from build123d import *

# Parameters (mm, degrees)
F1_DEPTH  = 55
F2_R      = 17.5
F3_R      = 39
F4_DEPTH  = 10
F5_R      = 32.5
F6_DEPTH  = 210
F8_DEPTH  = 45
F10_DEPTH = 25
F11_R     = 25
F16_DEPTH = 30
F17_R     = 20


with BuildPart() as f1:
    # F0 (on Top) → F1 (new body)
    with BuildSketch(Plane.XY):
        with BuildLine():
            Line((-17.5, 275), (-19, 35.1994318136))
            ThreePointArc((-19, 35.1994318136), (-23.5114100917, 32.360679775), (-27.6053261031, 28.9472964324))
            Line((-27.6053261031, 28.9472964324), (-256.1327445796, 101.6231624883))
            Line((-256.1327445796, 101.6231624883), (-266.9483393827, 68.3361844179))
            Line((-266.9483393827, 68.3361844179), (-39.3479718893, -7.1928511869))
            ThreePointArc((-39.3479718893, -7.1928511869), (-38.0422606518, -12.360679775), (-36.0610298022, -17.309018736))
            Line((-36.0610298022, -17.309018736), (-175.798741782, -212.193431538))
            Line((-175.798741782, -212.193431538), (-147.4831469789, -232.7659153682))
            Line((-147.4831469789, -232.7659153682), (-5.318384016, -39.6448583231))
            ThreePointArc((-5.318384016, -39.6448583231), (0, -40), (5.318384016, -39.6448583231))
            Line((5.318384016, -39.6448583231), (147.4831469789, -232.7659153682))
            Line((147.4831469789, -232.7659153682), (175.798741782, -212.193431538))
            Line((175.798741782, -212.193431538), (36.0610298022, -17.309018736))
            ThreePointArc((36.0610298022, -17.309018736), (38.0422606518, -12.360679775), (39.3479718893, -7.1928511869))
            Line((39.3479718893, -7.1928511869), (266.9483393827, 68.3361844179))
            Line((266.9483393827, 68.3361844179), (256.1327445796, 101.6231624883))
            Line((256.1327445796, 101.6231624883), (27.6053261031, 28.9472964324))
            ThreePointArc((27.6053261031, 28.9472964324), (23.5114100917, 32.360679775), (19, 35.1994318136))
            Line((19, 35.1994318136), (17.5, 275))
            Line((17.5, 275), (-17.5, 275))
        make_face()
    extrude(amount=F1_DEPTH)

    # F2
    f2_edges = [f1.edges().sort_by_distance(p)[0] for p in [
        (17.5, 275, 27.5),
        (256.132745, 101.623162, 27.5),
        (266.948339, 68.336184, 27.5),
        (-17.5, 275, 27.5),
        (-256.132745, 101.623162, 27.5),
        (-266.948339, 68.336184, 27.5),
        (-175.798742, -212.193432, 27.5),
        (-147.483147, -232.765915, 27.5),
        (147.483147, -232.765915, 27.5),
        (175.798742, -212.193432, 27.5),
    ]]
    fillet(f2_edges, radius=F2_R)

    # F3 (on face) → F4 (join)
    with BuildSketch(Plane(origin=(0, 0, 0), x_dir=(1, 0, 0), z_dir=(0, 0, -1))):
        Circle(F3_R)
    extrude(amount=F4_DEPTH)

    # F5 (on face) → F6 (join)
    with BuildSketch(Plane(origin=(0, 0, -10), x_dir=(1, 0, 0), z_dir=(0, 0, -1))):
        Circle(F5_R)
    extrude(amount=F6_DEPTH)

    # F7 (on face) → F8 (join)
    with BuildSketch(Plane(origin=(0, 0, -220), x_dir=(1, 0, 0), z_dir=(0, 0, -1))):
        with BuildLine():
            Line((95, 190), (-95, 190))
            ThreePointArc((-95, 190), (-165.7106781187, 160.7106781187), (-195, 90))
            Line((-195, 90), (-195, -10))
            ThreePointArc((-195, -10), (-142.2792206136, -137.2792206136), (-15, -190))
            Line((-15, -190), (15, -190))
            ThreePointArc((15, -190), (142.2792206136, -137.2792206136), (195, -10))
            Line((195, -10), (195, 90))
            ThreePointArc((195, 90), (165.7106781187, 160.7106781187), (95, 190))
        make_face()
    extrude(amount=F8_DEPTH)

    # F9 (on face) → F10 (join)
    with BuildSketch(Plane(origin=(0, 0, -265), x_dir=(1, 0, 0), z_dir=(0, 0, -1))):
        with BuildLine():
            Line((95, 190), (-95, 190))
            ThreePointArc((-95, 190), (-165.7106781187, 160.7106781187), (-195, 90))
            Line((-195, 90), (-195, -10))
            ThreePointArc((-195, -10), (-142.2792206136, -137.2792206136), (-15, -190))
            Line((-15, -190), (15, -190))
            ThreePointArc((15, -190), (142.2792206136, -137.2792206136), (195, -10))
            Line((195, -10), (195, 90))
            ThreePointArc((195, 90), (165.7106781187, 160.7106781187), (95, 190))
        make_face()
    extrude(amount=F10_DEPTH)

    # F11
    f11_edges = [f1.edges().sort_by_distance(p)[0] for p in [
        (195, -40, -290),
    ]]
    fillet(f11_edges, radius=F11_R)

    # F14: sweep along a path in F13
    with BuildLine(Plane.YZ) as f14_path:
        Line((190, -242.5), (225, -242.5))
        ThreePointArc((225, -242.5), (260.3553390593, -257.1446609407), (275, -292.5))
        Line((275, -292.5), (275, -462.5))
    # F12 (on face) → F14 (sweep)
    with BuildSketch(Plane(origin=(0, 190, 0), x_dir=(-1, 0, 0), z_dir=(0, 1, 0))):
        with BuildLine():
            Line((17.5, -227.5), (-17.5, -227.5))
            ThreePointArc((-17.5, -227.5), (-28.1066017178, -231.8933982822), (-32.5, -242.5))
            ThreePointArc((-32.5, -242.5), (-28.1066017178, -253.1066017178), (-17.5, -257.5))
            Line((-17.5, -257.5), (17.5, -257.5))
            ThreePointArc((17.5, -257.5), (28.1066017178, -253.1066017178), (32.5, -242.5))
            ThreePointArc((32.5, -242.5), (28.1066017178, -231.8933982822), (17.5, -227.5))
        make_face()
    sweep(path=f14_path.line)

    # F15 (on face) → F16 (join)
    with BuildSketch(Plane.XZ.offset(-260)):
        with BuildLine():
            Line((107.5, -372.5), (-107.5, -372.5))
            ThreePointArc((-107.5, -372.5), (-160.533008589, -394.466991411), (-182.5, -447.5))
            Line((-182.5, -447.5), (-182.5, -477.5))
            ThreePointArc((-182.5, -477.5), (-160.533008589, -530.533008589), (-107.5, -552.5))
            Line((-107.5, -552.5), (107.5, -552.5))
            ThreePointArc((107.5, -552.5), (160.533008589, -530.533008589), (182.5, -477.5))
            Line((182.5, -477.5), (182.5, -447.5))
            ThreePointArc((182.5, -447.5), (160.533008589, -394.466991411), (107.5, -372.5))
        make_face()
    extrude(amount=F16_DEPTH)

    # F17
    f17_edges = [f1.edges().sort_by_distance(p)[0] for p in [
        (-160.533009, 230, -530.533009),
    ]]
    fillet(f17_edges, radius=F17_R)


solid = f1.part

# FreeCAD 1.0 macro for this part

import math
import FreeCAD as App
import Part
import Sketcher

V = App.Vector
Q = App.Units.Quantity


def edges_at(feature, points):
    """Names of the edges that pass closest to the given points."""
    edges = feature.Shape.Edges
    near = lambda p: min(range(len(edges)), key=lambda i: edges[i].distToShape(Part.Vertex(*p))[0])
    return sorted({f"Edge{near(p) + 1}" for p in points})

doc = App.newDocument("Part")
params = doc.addObject("Spreadsheet::Sheet", "Params")
for row, (alias, value) in enumerate([
    ("sketch1_radius", "40 mm"),
    ("sketch1_width", "35 mm"),
    ("sketch1_length", "35 mm"),
    ("pad1_length", "55 mm"),
    ("fillet_radius", "17.5 mm"),
    ("sketch2_diameter", "78 mm"),
    ("pad2_length", "10 mm"),
    ("sketch3_diameter", "65 mm"),
    ("pad3_length", "210 mm"),
    ("sketch4_radius", "100 mm"),
    ("sketch4_radius2", "180 mm"),
    ("sketch4_width", "190 mm"),
    ("sketch4_height", "100 mm"),
    ("pad4_length", "45 mm"),
    ("sketch5_radius", "100 mm"),
    ("sketch5_radius2", "180 mm"),
    ("sketch5_width", "190 mm"),
    ("sketch5_height", "100 mm"),
    ("pad5_length", "25 mm"),
    ("fillet2_radius", "25 mm"),
    ("sketch6_radius", "15 mm"),
    ("sketch6_width", "35 mm"),
    ("sketch7_radius", "50 mm"),
    ("sketch7_width", "35 mm"),
    ("sketch7_height", "170 mm"),
    ("sketch8_radius", "75 mm"),
    ("sketch8_width", "215 mm"),
    ("sketch8_height", "30 mm"),
    ("pad6_length", "30 mm"),
    ("fillet3_radius", "20 mm"),
], start=1):
    params.set(f"A{row}", alias)
    params.set(f"B{row}", "=" + value)
    params.setAlias(f"B{row}", alias)

body = doc.addObject("PartDesign::Body", "Body")

# Sketch on XY plane
sketch1 = doc.addObject("Sketcher::SketchObject", "Sketch")
body.addObject(sketch1)
sketch1.AttachmentSupport = (doc.XY_Plane, [""])
sketch1.MapMode = "FlatFace"
sketch1.addGeometry([
    Part.LineSegment(V(-17.5, 275, 0), V(-19, 35.199432, 0)),  # 0
    Part.ArcOfCircle(Part.Circle(V(0, 0, 0), V(0, 0, 1), 40), math.radians(118.35935), math.radians(133.64065)),  # 1
    Part.LineSegment(V(-27.605326, 28.947296, 0), V(-256.132745, 101.623162, 0)),  # 2
    Part.LineSegment(V(-256.132745, 101.623162, 0), V(-266.948339, 68.336184, 0)),  # 3
    Part.LineSegment(V(-266.948339, 68.336184, 0), V(-39.347972, -7.192851, 0)),  # 4
    Part.ArcOfCircle(Part.Circle(V(0, 0, 0), V(0, 0, 1), 40), math.radians(-169.64065), math.radians(-154.35935)),  # 5
    Part.LineSegment(V(-36.06103, -17.309019, 0), V(-175.798742, -212.193432, 0)),  # 6
    Part.LineSegment(V(-175.798742, -212.193432, 0), V(-147.483147, -232.765915, 0)),  # 7
    Part.LineSegment(V(-147.483147, -232.765915, 0), V(-5.318384, -39.644858, 0)),  # 8
    Part.ArcOfCircle(Part.Circle(V(0, 0, 0), V(0, 0, 1), 40), math.radians(-97.64065), math.radians(-82.35935)),  # 9
    Part.LineSegment(V(5.318384, -39.644858, 0), V(147.483147, -232.765915, 0)),  # 10
    Part.LineSegment(V(147.483147, -232.765915, 0), V(175.798742, -212.193432, 0)),  # 11
    Part.LineSegment(V(175.798742, -212.193432, 0), V(36.06103, -17.309019, 0)),  # 12
    Part.ArcOfCircle(Part.Circle(V(0, 0, 0), V(0, 0, 1), 40), math.radians(-25.64065), math.radians(-10.35935)),  # 13
    Part.LineSegment(V(39.347972, -7.192851, 0), V(266.948339, 68.336184, 0)),  # 14
    Part.LineSegment(V(266.948339, 68.336184, 0), V(256.132745, 101.623162, 0)),  # 15
    Part.LineSegment(V(256.132745, 101.623162, 0), V(27.605326, 28.947296, 0)),  # 16
    Part.ArcOfCircle(Part.Circle(V(0, 0, 0), V(0, 0, 1), 40), math.radians(46.35935), math.radians(61.64065)),  # 17
    Part.LineSegment(V(19, 35.199432, 0), V(17.5, 275, 0)),  # 18
    Part.LineSegment(V(17.5, 275, 0), V(-17.5, 275, 0)),  # 19
], False)
sketch1.addConstraint([
    Sketcher.Constraint("Coincident", 0, 2, 1, 1),
    Sketcher.Constraint("Coincident", 1, 2, 2, 1),
    Sketcher.Constraint("Coincident", 2, 2, 3, 1),
    Sketcher.Constraint("Coincident", 3, 2, 4, 1),
    Sketcher.Constraint("Coincident", 4, 2, 5, 1),
    Sketcher.Constraint("Coincident", 5, 2, 6, 1),
    Sketcher.Constraint("Coincident", 6, 2, 7, 1),
    Sketcher.Constraint("Coincident", 7, 2, 8, 1),
    Sketcher.Constraint("Coincident", 8, 2, 9, 1),
    Sketcher.Constraint("Coincident", 9, 2, 10, 1),
    Sketcher.Constraint("Coincident", 10, 2, 11, 1),
    Sketcher.Constraint("Coincident", 11, 2, 12, 1),
    Sketcher.Constraint("Coincident", 12, 2, 13, 1),
    Sketcher.Constraint("Coincident", 13, 2, 14, 1),
    Sketcher.Constraint("Coincident", 14, 2, 15, 1),
    Sketcher.Constraint("Coincident", 15, 2, 16, 1),
    Sketcher.Constraint("Coincident", 16, 2, 17, 1),
    Sketcher.Constraint("Coincident", 17, 2, 18, 1),
    Sketcher.Constraint("Coincident", 18, 2, 19, 1),
    Sketcher.Constraint("Coincident", 19, 2, 0, 1),
    Sketcher.Constraint("Horizontal", 19),
    Sketcher.Constraint("Coincident", 1, 3, -1, 1),
    Sketcher.Constraint("Coincident", 5, 3, -1, 1),
    Sketcher.Constraint("Coincident", 9, 3, -1, 1),
    Sketcher.Constraint("Coincident", 13, 3, -1, 1),
    Sketcher.Constraint("Coincident", 17, 3, -1, 1),
    Sketcher.Constraint("Equal", 1, 5),
    Sketcher.Constraint("Equal", 5, 9),
    Sketcher.Constraint("Equal", 9, 13),
    Sketcher.Constraint("Equal", 13, 17),
    Sketcher.Constraint("Symmetric", 7, 2, 10, 2, -2),
    Sketcher.Constraint("Symmetric", 6, 2, 11, 2, -2),
    Sketcher.Constraint("Symmetric", 3, 2, 14, 2, -2),
    Sketcher.Constraint("Symmetric", 2, 2, 15, 2, -2),
    Sketcher.Constraint("Horizontal", 8, 2, 9, 2),
    Sketcher.Constraint("Horizontal", 5, 2, 12, 2),
    Sketcher.Constraint("Horizontal", 4, 2, 13, 2),
    Sketcher.Constraint("Horizontal", 1, 2, 16, 2),
    Sketcher.Constraint("Horizontal", 0, 2, 17, 2),
    Sketcher.Constraint("Equal", 0, 2),
    Sketcher.Constraint("Equal", 2, 4),
    Sketcher.Constraint("Equal", 4, 6),
    Sketcher.Constraint("Equal", 3, 7),
    Sketcher.Constraint("Equal", 6, 8),
    Sketcher.Constraint("Equal", 16, 18),
    Sketcher.Constraint("Radius", 1, Q("40 mm")),
    Sketcher.Constraint("DistanceX", 19, 2, 19, 1, Q("35 mm")),
    Sketcher.Constraint("Angle", 3, Q("-108 deg")),
    Sketcher.Constraint("Angle", 7, Q("-36 deg")),
    Sketcher.Constraint("Distance", 3, Q("35 mm")),
    Sketcher.Constraint("DistanceX", 0, 2, -1, 1, Q("19 mm")),
    Sketcher.Constraint("DistanceY", -1, 1, 18, 2, Q("275 mm")),
    Sketcher.Constraint("DistanceX", 3, 2, -1, 1, Q("266.948339 mm")),
    Sketcher.Constraint("DistanceX", 4, 2, -1, 1, Q("39.347972 mm")),
    Sketcher.Constraint("DistanceX", 5, 2, -1, 1, Q("36.06103 mm")),
    Sketcher.Constraint("DistanceX", 6, 2, -1, 1, Q("175.798742 mm")),
])
sketch1.setExpression("Constraints[45]", "Params.sketch1_radius")
sketch1.setExpression("Constraints[46]", "Params.sketch1_width")
sketch1.setExpression("Constraints[49]", "Params.sketch1_length")
pad1 = doc.addObject("PartDesign::Pad", "Pad")
body.addObject(pad1)
pad1.Profile = sketch1
pad1.setExpression("Length", "Params.pad1_length")
doc.recompute()

fillet = doc.addObject("PartDesign::Fillet", "Fillet")
body.addObject(fillet)
fillet.Base = (pad1, edges_at(pad1, [
    (17.5, 275, 27.5),
    (256.133, 101.623, 27.5),
    (266.948, 68.336, 27.5),
    (-17.5, 275, 27.5),
    (-256.133, 101.623, 27.5),
    (-266.948, 68.336, 27.5),
    (-175.799, -212.193, 27.5),
    (-147.483, -232.766, 27.5),
    (147.483, -232.766, 27.5),
    (175.799, -212.193, 27.5),
]))
fillet.setExpression("Radius", "Params.fillet_radius")

# Sketch on XY plane
sketch2 = doc.addObject("Sketcher::SketchObject", "Sketch001")
body.addObject(sketch2)
sketch2.AttachmentSupport = (doc.XY_Plane, [""])
sketch2.MapMode = "FlatFace"
sketch2.addGeometry(Part.Circle(V(0, 0, 0), V(0, 0, 1), 39), False)
sketch2.addConstraint([
    Sketcher.Constraint("Coincident", 0, 3, -1, 1),
    Sketcher.Constraint("Diameter", 0, Q("78 mm")),
])
sketch2.setExpression("Constraints[1]", "Params.sketch2_diameter")
pad2 = doc.addObject("PartDesign::Pad", "Pad001")
body.addObject(pad2)
pad2.Profile = sketch2
pad2.setExpression("Length", "Params.pad2_length")
pad2.Reversed = True

# Sketch on XY plane
sketch3 = doc.addObject("Sketcher::SketchObject", "Sketch002")
body.addObject(sketch3)
sketch3.AttachmentSupport = (doc.XY_Plane, [""])
sketch3.MapMode = "FlatFace"
sketch3.AttachmentOffset = App.Placement(V(0, 0, -10), App.Rotation())
sketch3.addGeometry(Part.Circle(V(0, 0, 0), V(0, 0, 1), 32.5), False)
sketch3.addConstraint([
    Sketcher.Constraint("Coincident", 0, 3, -1, 1),
    Sketcher.Constraint("Diameter", 0, Q("65 mm")),
])
sketch3.setExpression("Constraints[1]", "Params.sketch3_diameter")
pad3 = doc.addObject("PartDesign::Pad", "Pad002")
body.addObject(pad3)
pad3.Profile = sketch3
pad3.setExpression("Length", "Params.pad3_length")
pad3.Reversed = True

# Sketch on XY plane
sketch4 = doc.addObject("Sketcher::SketchObject", "Sketch003")
body.addObject(sketch4)
sketch4.AttachmentSupport = (doc.XY_Plane, [""])
sketch4.MapMode = "FlatFace"
sketch4.AttachmentOffset = App.Placement(V(0, 0, -220), App.Rotation())
sketch4.addGeometry([
    Part.LineSegment(V(95, -190, 0), V(-95, -190, 0)),  # 0
    Part.ArcOfCircle(Part.Circle(V(-95, -90, 0), V(0, 0, 1), 100), math.radians(180), math.radians(270)),  # 1
    Part.LineSegment(V(-195, -90, 0), V(-195, 10, 0)),  # 2
    Part.ArcOfCircle(Part.Circle(V(-15, 10, 0), V(0, 0, 1), 180), math.radians(90), math.radians(180)),  # 3
    Part.LineSegment(V(-15, 190, 0), V(15, 190, 0)),  # 4
    Part.ArcOfCircle(Part.Circle(V(15, 10, 0), V(0, 0, 1), 180), math.radians(0), math.radians(90)),  # 5
    Part.LineSegment(V(195, 10, 0), V(195, -90, 0)),  # 6
    Part.ArcOfCircle(Part.Circle(V(95, -90, 0), V(0, 0, 1), 100), math.radians(-90), math.radians(0)),  # 7
], False)
sketch4.addConstraint([
    Sketcher.Constraint("Tangent", 0, 2, 1, 2),
    Sketcher.Constraint("Tangent", 1, 1, 2, 1),
    Sketcher.Constraint("Tangent", 2, 2, 3, 2),
    Sketcher.Constraint("Tangent", 3, 1, 4, 1),
    Sketcher.Constraint("Tangent", 4, 2, 5, 2),
    Sketcher.Constraint("Tangent", 5, 1, 6, 1),
    Sketcher.Constraint("Tangent", 6, 2, 7, 2),
    Sketcher.Constraint("Tangent", 7, 1, 0, 1),
    Sketcher.Constraint("Horizontal", 0),
    Sketcher.Constraint("Vertical", 2),
    Sketcher.Constraint("Horizontal", 4),
    Sketcher.Constraint("Vertical", 6),
    Sketcher.Constraint("Equal", 3, 5),
    Sketcher.Constraint("Equal", 1, 7),
    Sketcher.Constraint("Radius", 1, Q("100 mm")),
    Sketcher.Constraint("Radius", 3, Q("180 mm")),
    Sketcher.Constraint("DistanceX", 0, 2, 0, 1, Q("190 mm")),
    Sketcher.Constraint("DistanceY", 2, 1, 2, 2, Q("100 mm")),
    Sketcher.Constraint("DistanceX", 1, 3, -1, 1, Q("95 mm")),
    Sketcher.Constraint("DistanceY", 1, 3, -1, 1, Q("90 mm")),
])
sketch4.setExpression("Constraints[14]", "Params.sketch4_radius")
sketch4.setExpression("Constraints[15]", "Params.sketch4_radius2")
sketch4.setExpression("Constraints[16]", "Params.sketch4_width")
sketch4.setExpression("Constraints[17]", "Params.sketch4_height")
pad4 = doc.addObject("PartDesign::Pad", "Pad003")
body.addObject(pad4)
pad4.Profile = sketch4
pad4.setExpression("Length", "Params.pad4_length")
pad4.Reversed = True

# Sketch on XY plane
sketch5 = doc.addObject("Sketcher::SketchObject", "Sketch004")
body.addObject(sketch5)
sketch5.AttachmentSupport = (doc.XY_Plane, [""])
sketch5.MapMode = "FlatFace"
sketch5.AttachmentOffset = App.Placement(V(0, 0, -265), App.Rotation())
sketch5.addGeometry([
    Part.LineSegment(V(95, -190, 0), V(-95, -190, 0)),  # 0
    Part.ArcOfCircle(Part.Circle(V(-95, -90, 0), V(0, 0, 1), 100), math.radians(180), math.radians(270)),  # 1
    Part.LineSegment(V(-195, -90, 0), V(-195, 10, 0)),  # 2
    Part.ArcOfCircle(Part.Circle(V(-15, 10, 0), V(0, 0, 1), 180), math.radians(90), math.radians(180)),  # 3
    Part.LineSegment(V(-15, 190, 0), V(15, 190, 0)),  # 4
    Part.ArcOfCircle(Part.Circle(V(15, 10, 0), V(0, 0, 1), 180), math.radians(0), math.radians(90)),  # 5
    Part.LineSegment(V(195, 10, 0), V(195, -90, 0)),  # 6
    Part.ArcOfCircle(Part.Circle(V(95, -90, 0), V(0, 0, 1), 100), math.radians(-90), math.radians(0)),  # 7
], False)
sketch5.addConstraint([
    Sketcher.Constraint("Tangent", 0, 2, 1, 2),
    Sketcher.Constraint("Tangent", 1, 1, 2, 1),
    Sketcher.Constraint("Tangent", 2, 2, 3, 2),
    Sketcher.Constraint("Tangent", 3, 1, 4, 1),
    Sketcher.Constraint("Tangent", 4, 2, 5, 2),
    Sketcher.Constraint("Tangent", 5, 1, 6, 1),
    Sketcher.Constraint("Tangent", 6, 2, 7, 2),
    Sketcher.Constraint("Tangent", 7, 1, 0, 1),
    Sketcher.Constraint("Horizontal", 0),
    Sketcher.Constraint("Vertical", 2),
    Sketcher.Constraint("Horizontal", 4),
    Sketcher.Constraint("Vertical", 6),
    Sketcher.Constraint("Equal", 3, 5),
    Sketcher.Constraint("Equal", 1, 7),
    Sketcher.Constraint("Radius", 1, Q("100 mm")),
    Sketcher.Constraint("Radius", 3, Q("180 mm")),
    Sketcher.Constraint("DistanceX", 0, 2, 0, 1, Q("190 mm")),
    Sketcher.Constraint("DistanceY", 2, 1, 2, 2, Q("100 mm")),
    Sketcher.Constraint("DistanceX", 1, 3, -1, 1, Q("95 mm")),
    Sketcher.Constraint("DistanceY", 1, 3, -1, 1, Q("90 mm")),
])
sketch5.setExpression("Constraints[14]", "Params.sketch5_radius")
sketch5.setExpression("Constraints[15]", "Params.sketch5_radius2")
sketch5.setExpression("Constraints[16]", "Params.sketch5_width")
sketch5.setExpression("Constraints[17]", "Params.sketch5_height")
pad5 = doc.addObject("PartDesign::Pad", "Pad004")
body.addObject(pad5)
pad5.Profile = sketch5
pad5.setExpression("Length", "Params.pad5_length")
pad5.Reversed = True
doc.recompute()

fillet2 = doc.addObject("PartDesign::Fillet", "Fillet001")
body.addObject(fillet2)
fillet2.Base = (pad5, edges_at(pad5, [(195, -40, -290)]))
fillet2.setExpression("Radius", "Params.fillet2_radius")

# Sketch on XZ plane
sketch6 = doc.addObject("Sketcher::SketchObject", "Sketch005")
body.addObject(sketch6)
sketch6.AttachmentSupport = (doc.XZ_Plane, [""])
sketch6.MapMode = "FlatFace"
sketch6.AttachmentOffset = App.Placement(V(0, 0, -190), App.Rotation())
sketch6.addGeometry([
    Part.LineSegment(V(-17.5, -227.5, 0), V(17.5, -227.5, 0)),
    Part.ArcOfCircle(Part.Circle(V(17.5, -242.5, 0), V(0, 0, 1), 15), math.radians(-90), math.radians(90)),
    Part.LineSegment(V(17.5, -257.5, 0), V(-17.5, -257.5, 0)),
    Part.ArcOfCircle(Part.Circle(V(-17.5, -242.5, 0), V(0, 0, 1), 15), math.radians(90), math.radians(270)),
], False)
sketch6.addConstraint([
    Sketcher.Constraint("Tangent", 0, 2, 1, 2),
    Sketcher.Constraint("Tangent", 1, 1, 2, 1),
    Sketcher.Constraint("Tangent", 2, 2, 3, 2),
    Sketcher.Constraint("Tangent", 3, 1, 0, 1),
    Sketcher.Constraint("Horizontal", 0),
    Sketcher.Constraint("Horizontal", 2),
    Sketcher.Constraint("Radius", 1, Q("15 mm")),
    Sketcher.Constraint("DistanceX", 0, 1, 0, 2, Q("35 mm")),
    Sketcher.Constraint("DistanceX", -1, 1, 1, 3, Q("17.5 mm")),
    Sketcher.Constraint("DistanceY", 1, 3, -1, 1, Q("242.5 mm")),
])
sketch6.setExpression("Constraints[6]", "Params.sketch6_radius")
sketch6.setExpression("Constraints[7]", "Params.sketch6_width")

# Sketch on YZ plane
sketch7 = doc.addObject("Sketcher::SketchObject", "Sketch006")
body.addObject(sketch7)
sketch7.AttachmentSupport = (doc.YZ_Plane, [""])
sketch7.MapMode = "FlatFace"
sketch7.addGeometry([
    Part.LineSegment(V(190, -242.5, 0), V(225, -242.5, 0)),
    Part.ArcOfCircle(Part.Circle(V(225, -292.5, 0), V(0, 0, 1), 50), math.radians(0), math.radians(90)),
    Part.LineSegment(V(275, -292.5, 0), V(275, -462.5, 0)),
], False)
sketch7.addConstraint([
    Sketcher.Constraint("Tangent", 0, 2, 1, 2),
    Sketcher.Constraint("Tangent", 1, 1, 2, 1),
    Sketcher.Constraint("Horizontal", 0),
    Sketcher.Constraint("Vertical", 2),
    Sketcher.Constraint("Radius", 1, Q("50 mm")),
    Sketcher.Constraint("DistanceX", 0, 1, 0, 2, Q("35 mm")),
    Sketcher.Constraint("DistanceY", 2, 2, 2, 1, Q("170 mm")),
    Sketcher.Constraint("DistanceX", -1, 1, 1, 3, Q("225 mm")),
    Sketcher.Constraint("DistanceY", 1, 3, -1, 1, Q("292.5 mm")),
])
sketch7.setExpression("Constraints[4]", "Params.sketch7_radius")
sketch7.setExpression("Constraints[5]", "Params.sketch7_width")
sketch7.setExpression("Constraints[6]", "Params.sketch7_height")
doc.recompute()

additivepipe = doc.addObject("PartDesign::AdditivePipe", "AdditivePipe")
body.addObject(additivepipe)
additivepipe.Profile = sketch6
additivepipe.Spine = (sketch7, ["Edge1", "Edge2", "Edge3"])

# Sketch on XZ plane
sketch8 = doc.addObject("Sketcher::SketchObject", "Sketch007")
body.addObject(sketch8)
sketch8.AttachmentSupport = (doc.XZ_Plane, [""])
sketch8.MapMode = "FlatFace"
sketch8.AttachmentOffset = App.Placement(V(0, 0, -260), App.Rotation())
sketch8.addGeometry([
    Part.LineSegment(V(107.5, -372.5, 0), V(-107.5, -372.5, 0)),  # 0
    Part.ArcOfCircle(Part.Circle(V(-107.5, -447.5, 0), V(0, 0, 1), 75), math.radians(90), math.radians(180)),  # 1
    Part.LineSegment(V(-182.5, -447.5, 0), V(-182.5, -477.5, 0)),  # 2
    Part.ArcOfCircle(Part.Circle(V(-107.5, -477.5, 0), V(0, 0, 1), 75), math.radians(180), math.radians(270)),  # 3
    Part.LineSegment(V(-107.5, -552.5, 0), V(107.5, -552.5, 0)),  # 4
    Part.ArcOfCircle(Part.Circle(V(107.5, -477.5, 0), V(0, 0, 1), 75), math.radians(-90), math.radians(0)),  # 5
    Part.LineSegment(V(182.5, -477.5, 0), V(182.5, -447.5, 0)),  # 6
    Part.ArcOfCircle(Part.Circle(V(107.5, -447.5, 0), V(0, 0, 1), 75), math.radians(0), math.radians(90)),  # 7
], False)
sketch8.addConstraint([
    Sketcher.Constraint("Tangent", 0, 2, 1, 1),
    Sketcher.Constraint("Tangent", 1, 2, 2, 1),
    Sketcher.Constraint("Tangent", 2, 2, 3, 1),
    Sketcher.Constraint("Tangent", 3, 2, 4, 1),
    Sketcher.Constraint("Tangent", 4, 2, 5, 1),
    Sketcher.Constraint("Tangent", 5, 2, 6, 1),
    Sketcher.Constraint("Tangent", 6, 2, 7, 1),
    Sketcher.Constraint("Tangent", 7, 2, 0, 1),
    Sketcher.Constraint("Horizontal", 0),
    Sketcher.Constraint("Vertical", 2),
    Sketcher.Constraint("Horizontal", 4),
    Sketcher.Constraint("Vertical", 6),
    Sketcher.Constraint("Equal", 1, 3),
    Sketcher.Constraint("Equal", 3, 5),
    Sketcher.Constraint("Equal", 5, 7),
    Sketcher.Constraint("Radius", 1, Q("75 mm")),
    Sketcher.Constraint("DistanceX", 0, 2, 0, 1, Q("215 mm")),
    Sketcher.Constraint("DistanceY", 2, 2, 2, 1, Q("30 mm")),
    Sketcher.Constraint("DistanceX", 1, 3, -1, 1, Q("107.5 mm")),
    Sketcher.Constraint("DistanceY", 1, 3, -1, 1, Q("447.5 mm")),
])
sketch8.setExpression("Constraints[15]", "Params.sketch8_radius")
sketch8.setExpression("Constraints[16]", "Params.sketch8_width")
sketch8.setExpression("Constraints[17]", "Params.sketch8_height")
pad6 = doc.addObject("PartDesign::Pad", "Pad005")
body.addObject(pad6)
pad6.Profile = sketch8
pad6.setExpression("Length", "Params.pad6_length")
doc.recompute()

fillet3 = doc.addObject("PartDesign::Fillet", "Fillet002")
body.addObject(fillet3)
fillet3.Base = (pad6, edges_at(pad6, [(-160.533, 230, -530.533)]))
fillet3.setExpression("Radius", "Params.fillet3_radius")

doc.recompute()
